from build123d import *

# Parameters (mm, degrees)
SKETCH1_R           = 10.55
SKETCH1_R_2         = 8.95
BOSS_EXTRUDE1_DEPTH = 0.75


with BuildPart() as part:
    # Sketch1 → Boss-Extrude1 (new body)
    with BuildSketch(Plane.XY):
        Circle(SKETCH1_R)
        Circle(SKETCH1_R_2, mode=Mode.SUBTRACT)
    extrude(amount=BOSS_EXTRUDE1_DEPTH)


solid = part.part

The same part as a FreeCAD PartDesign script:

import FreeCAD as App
import Part
import Sketcher
Q = App.Units.Quantity

doc = App.newDocument("Part")
body = doc.addObject("PartDesign::Body", "Body")

# Sketch on XY plane
sketch1 = doc.addObject("Sketcher::SketchObject", "Sketch")
body.addObject(sketch1)
sketch1.AttachmentSupport = (doc.XY_Plane, [""])
sketch1.MapMode = "FlatFace"
sketch1.addGeometry(Part.Circle(App.Vector(0, 0, 0), App.Vector(0, 0, 1), 10.55), False)
sketch1.addGeometry(Part.Circle(App.Vector(0, 0, 0), App.Vector(0, 0, 1), 8.95), False)
sketch1.addConstraint(Sketcher.Constraint("Coincident", 0, 3, -1, 1))
sketch1.addConstraint(Sketcher.Constraint("Coincident", 1, 3, -1, 1))
sketch1.addConstraint(Sketcher.Constraint("Diameter", 0, Q("21.1 mm")))
sketch1.addConstraint(Sketcher.Constraint("Diameter", 1, Q("17.9 mm")))
pad1 = doc.addObject("PartDesign::Pad", "Pad")
body.addObject(pad1)
pad1.Profile = sketch1
pad1.Length = 0.75

doc.recompute()
